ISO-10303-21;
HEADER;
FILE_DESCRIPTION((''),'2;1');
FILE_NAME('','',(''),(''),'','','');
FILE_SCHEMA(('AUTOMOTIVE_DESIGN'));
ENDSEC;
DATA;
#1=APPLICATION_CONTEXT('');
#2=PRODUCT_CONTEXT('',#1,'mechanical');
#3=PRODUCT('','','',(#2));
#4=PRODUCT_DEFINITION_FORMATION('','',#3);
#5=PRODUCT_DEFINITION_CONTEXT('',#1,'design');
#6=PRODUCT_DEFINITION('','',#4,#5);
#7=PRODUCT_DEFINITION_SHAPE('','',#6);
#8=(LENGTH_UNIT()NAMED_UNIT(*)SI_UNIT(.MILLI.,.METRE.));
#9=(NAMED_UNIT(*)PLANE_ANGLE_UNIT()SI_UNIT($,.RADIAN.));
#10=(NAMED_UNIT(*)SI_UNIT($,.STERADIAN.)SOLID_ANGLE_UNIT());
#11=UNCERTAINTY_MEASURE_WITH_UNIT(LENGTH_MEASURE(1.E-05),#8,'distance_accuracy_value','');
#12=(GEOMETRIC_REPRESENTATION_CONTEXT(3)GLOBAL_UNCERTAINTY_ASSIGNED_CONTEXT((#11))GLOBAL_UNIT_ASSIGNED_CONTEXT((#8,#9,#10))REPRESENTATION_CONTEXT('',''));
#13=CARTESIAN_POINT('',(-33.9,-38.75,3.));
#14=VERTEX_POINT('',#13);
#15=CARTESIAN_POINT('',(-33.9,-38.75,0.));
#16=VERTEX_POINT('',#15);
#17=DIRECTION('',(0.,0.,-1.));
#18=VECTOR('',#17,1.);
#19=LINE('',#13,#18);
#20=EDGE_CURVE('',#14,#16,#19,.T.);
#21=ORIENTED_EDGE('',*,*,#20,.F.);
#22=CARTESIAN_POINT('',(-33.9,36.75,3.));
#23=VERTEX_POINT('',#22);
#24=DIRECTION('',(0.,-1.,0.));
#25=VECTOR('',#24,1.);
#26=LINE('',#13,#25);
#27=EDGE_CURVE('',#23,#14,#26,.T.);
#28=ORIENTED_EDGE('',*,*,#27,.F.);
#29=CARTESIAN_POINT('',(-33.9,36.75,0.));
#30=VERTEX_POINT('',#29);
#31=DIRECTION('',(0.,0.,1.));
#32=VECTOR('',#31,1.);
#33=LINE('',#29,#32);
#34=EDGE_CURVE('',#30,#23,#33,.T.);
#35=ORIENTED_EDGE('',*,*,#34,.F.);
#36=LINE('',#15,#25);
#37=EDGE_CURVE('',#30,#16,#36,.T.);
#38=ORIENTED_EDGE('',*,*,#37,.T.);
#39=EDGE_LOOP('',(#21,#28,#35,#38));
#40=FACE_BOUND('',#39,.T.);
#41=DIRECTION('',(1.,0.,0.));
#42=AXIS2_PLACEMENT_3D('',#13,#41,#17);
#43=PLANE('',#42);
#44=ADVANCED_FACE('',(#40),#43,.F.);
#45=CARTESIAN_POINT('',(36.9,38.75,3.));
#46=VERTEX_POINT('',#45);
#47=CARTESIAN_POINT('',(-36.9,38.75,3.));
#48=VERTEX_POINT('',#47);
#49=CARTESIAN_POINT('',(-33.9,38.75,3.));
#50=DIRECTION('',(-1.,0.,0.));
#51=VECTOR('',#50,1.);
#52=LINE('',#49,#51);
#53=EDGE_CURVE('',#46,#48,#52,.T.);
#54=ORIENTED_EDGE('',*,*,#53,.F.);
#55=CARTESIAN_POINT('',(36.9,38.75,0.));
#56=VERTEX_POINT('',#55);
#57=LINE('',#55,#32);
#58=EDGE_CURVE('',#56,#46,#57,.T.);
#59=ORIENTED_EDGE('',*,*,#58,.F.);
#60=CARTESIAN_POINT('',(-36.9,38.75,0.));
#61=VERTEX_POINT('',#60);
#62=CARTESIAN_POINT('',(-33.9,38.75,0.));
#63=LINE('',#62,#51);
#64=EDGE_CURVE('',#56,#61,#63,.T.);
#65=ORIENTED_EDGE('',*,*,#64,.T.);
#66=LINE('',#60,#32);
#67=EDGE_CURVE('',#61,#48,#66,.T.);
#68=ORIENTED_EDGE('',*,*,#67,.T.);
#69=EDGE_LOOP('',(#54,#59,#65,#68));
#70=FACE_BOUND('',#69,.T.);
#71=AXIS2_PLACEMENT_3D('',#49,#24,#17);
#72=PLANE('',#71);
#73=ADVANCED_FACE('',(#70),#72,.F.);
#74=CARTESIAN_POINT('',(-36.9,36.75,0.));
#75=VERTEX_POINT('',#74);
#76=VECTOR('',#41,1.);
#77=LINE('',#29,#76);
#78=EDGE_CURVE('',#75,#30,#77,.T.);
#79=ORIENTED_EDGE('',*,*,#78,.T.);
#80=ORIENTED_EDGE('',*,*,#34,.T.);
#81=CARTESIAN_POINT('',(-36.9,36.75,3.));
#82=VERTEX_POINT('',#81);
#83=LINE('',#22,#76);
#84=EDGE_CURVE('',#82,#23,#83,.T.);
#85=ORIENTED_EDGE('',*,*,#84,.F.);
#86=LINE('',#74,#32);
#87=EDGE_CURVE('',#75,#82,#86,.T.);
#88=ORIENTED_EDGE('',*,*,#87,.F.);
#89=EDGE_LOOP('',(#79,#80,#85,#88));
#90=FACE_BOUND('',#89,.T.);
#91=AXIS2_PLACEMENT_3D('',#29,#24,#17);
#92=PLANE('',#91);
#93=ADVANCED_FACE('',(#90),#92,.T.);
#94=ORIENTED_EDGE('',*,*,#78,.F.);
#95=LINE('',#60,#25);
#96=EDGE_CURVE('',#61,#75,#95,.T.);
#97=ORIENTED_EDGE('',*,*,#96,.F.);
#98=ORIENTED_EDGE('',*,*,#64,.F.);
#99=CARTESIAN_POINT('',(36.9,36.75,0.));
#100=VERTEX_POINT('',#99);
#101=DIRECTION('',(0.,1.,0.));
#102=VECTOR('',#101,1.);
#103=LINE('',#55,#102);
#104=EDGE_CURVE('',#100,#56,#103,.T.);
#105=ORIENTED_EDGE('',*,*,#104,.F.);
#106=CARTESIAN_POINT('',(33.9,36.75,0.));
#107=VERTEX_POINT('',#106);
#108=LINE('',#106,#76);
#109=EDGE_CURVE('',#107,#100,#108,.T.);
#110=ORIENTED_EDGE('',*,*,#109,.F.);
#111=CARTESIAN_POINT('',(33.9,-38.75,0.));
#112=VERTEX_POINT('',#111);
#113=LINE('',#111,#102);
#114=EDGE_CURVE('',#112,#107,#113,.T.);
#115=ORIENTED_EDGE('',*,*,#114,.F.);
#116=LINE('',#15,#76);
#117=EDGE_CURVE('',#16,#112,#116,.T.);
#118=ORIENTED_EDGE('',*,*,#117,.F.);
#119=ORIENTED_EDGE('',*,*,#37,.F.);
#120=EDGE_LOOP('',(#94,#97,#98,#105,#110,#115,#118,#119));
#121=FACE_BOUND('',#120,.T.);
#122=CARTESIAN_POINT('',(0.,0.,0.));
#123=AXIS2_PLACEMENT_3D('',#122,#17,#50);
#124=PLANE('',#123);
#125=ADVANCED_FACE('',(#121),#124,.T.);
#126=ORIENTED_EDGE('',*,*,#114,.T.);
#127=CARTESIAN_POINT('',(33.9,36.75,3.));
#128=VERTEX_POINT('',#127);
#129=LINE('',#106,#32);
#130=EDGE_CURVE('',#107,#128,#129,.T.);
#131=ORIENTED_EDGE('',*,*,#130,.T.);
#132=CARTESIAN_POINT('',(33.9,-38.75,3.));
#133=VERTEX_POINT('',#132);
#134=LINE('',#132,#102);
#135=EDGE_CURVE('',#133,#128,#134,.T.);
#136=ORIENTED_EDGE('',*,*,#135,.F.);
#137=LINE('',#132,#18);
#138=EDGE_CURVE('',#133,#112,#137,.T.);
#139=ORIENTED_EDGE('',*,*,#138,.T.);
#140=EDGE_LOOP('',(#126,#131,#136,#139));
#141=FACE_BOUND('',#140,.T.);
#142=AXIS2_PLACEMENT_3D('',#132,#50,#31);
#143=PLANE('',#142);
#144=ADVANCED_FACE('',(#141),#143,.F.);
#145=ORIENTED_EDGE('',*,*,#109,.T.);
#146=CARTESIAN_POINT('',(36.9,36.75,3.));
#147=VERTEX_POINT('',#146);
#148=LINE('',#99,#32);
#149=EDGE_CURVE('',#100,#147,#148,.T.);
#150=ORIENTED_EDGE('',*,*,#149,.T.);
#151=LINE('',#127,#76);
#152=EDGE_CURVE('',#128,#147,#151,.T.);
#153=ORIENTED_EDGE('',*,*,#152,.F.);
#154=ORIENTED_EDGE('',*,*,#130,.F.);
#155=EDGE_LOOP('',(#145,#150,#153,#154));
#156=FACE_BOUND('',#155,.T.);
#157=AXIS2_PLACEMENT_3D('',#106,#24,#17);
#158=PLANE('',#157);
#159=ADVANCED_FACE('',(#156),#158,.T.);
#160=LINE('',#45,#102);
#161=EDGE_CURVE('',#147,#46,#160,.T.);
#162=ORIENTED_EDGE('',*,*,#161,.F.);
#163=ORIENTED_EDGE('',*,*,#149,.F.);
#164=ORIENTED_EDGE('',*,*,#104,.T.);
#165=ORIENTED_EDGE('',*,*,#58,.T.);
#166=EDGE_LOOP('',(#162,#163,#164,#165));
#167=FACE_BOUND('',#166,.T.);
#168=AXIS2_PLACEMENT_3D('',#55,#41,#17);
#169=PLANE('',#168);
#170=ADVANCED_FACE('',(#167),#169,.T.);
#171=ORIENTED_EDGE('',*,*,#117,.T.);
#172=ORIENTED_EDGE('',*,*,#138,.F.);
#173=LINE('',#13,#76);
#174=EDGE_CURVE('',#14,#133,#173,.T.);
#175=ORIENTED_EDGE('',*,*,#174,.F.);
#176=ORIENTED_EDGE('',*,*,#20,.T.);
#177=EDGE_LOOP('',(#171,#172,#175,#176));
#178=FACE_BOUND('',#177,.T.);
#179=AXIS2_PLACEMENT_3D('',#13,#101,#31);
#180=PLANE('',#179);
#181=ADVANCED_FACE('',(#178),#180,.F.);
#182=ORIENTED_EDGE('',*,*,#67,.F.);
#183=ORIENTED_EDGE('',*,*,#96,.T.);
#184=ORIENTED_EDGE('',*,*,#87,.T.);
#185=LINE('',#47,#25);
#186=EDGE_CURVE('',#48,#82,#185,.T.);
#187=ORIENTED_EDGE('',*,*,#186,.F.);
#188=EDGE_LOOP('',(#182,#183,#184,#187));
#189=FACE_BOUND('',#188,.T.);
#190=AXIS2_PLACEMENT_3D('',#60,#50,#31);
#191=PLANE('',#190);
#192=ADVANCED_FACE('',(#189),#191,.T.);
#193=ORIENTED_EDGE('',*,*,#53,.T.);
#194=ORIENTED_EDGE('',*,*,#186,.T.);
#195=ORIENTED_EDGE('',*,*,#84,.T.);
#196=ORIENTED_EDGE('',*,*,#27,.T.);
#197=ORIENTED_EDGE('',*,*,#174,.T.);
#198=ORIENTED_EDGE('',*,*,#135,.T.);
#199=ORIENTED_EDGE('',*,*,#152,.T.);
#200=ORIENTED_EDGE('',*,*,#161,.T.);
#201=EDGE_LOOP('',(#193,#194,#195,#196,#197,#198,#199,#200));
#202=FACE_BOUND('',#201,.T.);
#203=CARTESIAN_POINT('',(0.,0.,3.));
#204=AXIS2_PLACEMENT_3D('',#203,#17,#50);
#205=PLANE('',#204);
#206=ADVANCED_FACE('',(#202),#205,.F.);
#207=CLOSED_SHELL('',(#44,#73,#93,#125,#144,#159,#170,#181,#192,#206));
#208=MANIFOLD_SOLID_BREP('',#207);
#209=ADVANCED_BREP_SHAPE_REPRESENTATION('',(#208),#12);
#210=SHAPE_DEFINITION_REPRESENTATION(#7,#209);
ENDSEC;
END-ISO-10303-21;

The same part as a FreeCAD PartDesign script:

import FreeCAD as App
import Part
import Sketcher

doc = App.newDocument("Part")
params = doc.addObject("Spreadsheet::Sheet", "Params")
for row, (alias, value) in enumerate([
    ("sketch1_width", "67.8 mm"),
    ("sketch1_height", "77.5 mm"),
    ("pad1_length", "3 mm"),
    ("sketch2_width", "3 mm"),
    ("sketch2_height", "2 mm"),
    ("pad2_length", "3 mm"),
], start=1):
    params.set(f"A{row}", alias)
    params.set(f"B{row}", "=" + value)
    params.setAlias(f"B{row}", alias)

body = doc.addObject("PartDesign::Body", "Body")

sketch1 = body.newObject("Sketcher::SketchObject", "Sketch")
sketch1.AttachmentSupport = (doc.getObject("XY_Plane"), [""])
sketch1.MapMode = "FlatFace"
sketch1.addGeometry([
    Part.LineSegment(App.Vector(-34, 39, 0), App.Vector(-34, -39, 0)),
    Part.LineSegment(App.Vector(-34, -39, 0), App.Vector(34, -39, 0)),
    Part.LineSegment(App.Vector(34, -39, 0), App.Vector(34, 39, 0)),
    Part.LineSegment(App.Vector(34, 39, 0), App.Vector(-34, 39, 0)),
], False)
sketch1.addConstraint([
    Sketcher.Constraint("Coincident", 0, 2, 1, 1),
    Sketcher.Constraint("Coincident", 1, 2, 2, 1),
    Sketcher.Constraint("Coincident", 2, 2, 3, 1),
    Sketcher.Constraint("Coincident", 3, 2, 0, 1),
    Sketcher.Constraint("Vertical", 0),
    Sketcher.Constraint("Horizontal", 1),
    Sketcher.Constraint("Vertical", 2),
    Sketcher.Constraint("Horizontal", 3),
    Sketcher.Constraint("Symmetric", 0, 2, 2, 2, -1, 1),
    Sketcher.Constraint("DistanceX", 1, 1, 1, 2, 67.8),
    Sketcher.Constraint("DistanceY", 0, 2, 0, 1, 77.5),
])
sketch1.setExpression("Constraints[9]", "Params.sketch1_width")
sketch1.setExpression("Constraints[10]", "Params.sketch1_height")
pad1 = body.newObject("PartDesign::Pad", "Pad")
pad1.Profile = sketch1
pad1.setExpression("Length", "Params.pad1_length")

sketch2 = body.newObject("Sketcher::SketchObject", "Sketch001")
sketch2.AttachmentSupport = (doc.getObject("XY_Plane"), [""])
sketch2.MapMode = "FlatFace"
sketch2.AttachmentOffset = App.Placement(App.Vector(0, 0, 3), App.Rotation())
sketch2.addGeometry([
    Part.LineSegment(App.Vector(33.9, 38.8, 0), App.Vector(33.9, 36.8, 0)),
    Part.LineSegment(App.Vector(33.9, 36.8, 0), App.Vector(36.9, 36.8, 0)),
    Part.LineSegment(App.Vector(36.9, 36.8, 0), App.Vector(36.9, 38.8, 0)),
    Part.LineSegment(App.Vector(36.9, 38.8, 0), App.Vector(33.9, 38.8, 0)),
    Part.LineSegment(App.Vector(-36.9, 38.8, 0), App.Vector(-36.9, 36.8, 0)),
    Part.LineSegment(App.Vector(-36.9, 36.8, 0), App.Vector(-33.9, 36.8, 0)),
    Part.LineSegment(App.Vector(-33.9, 36.8, 0), App.Vector(-33.9, 38.8, 0)),
    Part.LineSegment(App.Vector(-33.9, 38.8, 0), App.Vector(-36.9, 38.8, 0)),
], False)
sketch2.addConstraint([
    Sketcher.Constraint("Coincident", 0, 2, 1, 1),
    Sketcher.Constraint("Coincident", 1, 2, 2, 1),
    Sketcher.Constraint("Coincident", 2, 2, 3, 1),
    Sketcher.Constraint("Coincident", 3, 2, 0, 1),
    Sketcher.Constraint("Coincident", 4, 2, 5, 1),
    Sketcher.Constraint("Coincident", 5, 2, 6, 1),
    Sketcher.Constraint("Coincident", 6, 2, 7, 1),
    Sketcher.Constraint("Coincident", 7, 2, 4, 1),
    Sketcher.Constraint("Vertical", 0),
    Sketcher.Constraint("Horizontal", 1),
    Sketcher.Constraint("Vertical", 2),
    Sketcher.Constraint("Horizontal", 3),
    Sketcher.Constraint("Vertical", 4),
    Sketcher.Constraint("Horizontal", 5),
    Sketcher.Constraint("Vertical", 6),
    Sketcher.Constraint("Horizontal", 7),
    Sketcher.Constraint("Symmetric", 1, 2, 4, 2, -2),
    Sketcher.Constraint("Symmetric", 3, 2, 6, 2, -2),
    Sketcher.Constraint("DistanceX", 1, 1, 1, 2, 3.0),
    Sketcher.Constraint("DistanceY", 0, 2, 0, 1, 2.0),
    Sketcher.Constraint("DistanceX", -1, 1, 0, 2, 33.9),
    Sketcher.Constraint("DistanceY", -1, 1, 0, 2, 36.75),
])
sketch2.setExpression("Constraints[18]", "Params.sketch2_width")
sketch2.setExpression("Constraints[19]", "Params.sketch2_height")
pad2 = body.newObject("PartDesign::Pad", "Pad001")
pad2.Profile = sketch2
pad2.setExpression("Length", "Params.pad2_length")
pad2.Reversed = True

doc.recompute()
